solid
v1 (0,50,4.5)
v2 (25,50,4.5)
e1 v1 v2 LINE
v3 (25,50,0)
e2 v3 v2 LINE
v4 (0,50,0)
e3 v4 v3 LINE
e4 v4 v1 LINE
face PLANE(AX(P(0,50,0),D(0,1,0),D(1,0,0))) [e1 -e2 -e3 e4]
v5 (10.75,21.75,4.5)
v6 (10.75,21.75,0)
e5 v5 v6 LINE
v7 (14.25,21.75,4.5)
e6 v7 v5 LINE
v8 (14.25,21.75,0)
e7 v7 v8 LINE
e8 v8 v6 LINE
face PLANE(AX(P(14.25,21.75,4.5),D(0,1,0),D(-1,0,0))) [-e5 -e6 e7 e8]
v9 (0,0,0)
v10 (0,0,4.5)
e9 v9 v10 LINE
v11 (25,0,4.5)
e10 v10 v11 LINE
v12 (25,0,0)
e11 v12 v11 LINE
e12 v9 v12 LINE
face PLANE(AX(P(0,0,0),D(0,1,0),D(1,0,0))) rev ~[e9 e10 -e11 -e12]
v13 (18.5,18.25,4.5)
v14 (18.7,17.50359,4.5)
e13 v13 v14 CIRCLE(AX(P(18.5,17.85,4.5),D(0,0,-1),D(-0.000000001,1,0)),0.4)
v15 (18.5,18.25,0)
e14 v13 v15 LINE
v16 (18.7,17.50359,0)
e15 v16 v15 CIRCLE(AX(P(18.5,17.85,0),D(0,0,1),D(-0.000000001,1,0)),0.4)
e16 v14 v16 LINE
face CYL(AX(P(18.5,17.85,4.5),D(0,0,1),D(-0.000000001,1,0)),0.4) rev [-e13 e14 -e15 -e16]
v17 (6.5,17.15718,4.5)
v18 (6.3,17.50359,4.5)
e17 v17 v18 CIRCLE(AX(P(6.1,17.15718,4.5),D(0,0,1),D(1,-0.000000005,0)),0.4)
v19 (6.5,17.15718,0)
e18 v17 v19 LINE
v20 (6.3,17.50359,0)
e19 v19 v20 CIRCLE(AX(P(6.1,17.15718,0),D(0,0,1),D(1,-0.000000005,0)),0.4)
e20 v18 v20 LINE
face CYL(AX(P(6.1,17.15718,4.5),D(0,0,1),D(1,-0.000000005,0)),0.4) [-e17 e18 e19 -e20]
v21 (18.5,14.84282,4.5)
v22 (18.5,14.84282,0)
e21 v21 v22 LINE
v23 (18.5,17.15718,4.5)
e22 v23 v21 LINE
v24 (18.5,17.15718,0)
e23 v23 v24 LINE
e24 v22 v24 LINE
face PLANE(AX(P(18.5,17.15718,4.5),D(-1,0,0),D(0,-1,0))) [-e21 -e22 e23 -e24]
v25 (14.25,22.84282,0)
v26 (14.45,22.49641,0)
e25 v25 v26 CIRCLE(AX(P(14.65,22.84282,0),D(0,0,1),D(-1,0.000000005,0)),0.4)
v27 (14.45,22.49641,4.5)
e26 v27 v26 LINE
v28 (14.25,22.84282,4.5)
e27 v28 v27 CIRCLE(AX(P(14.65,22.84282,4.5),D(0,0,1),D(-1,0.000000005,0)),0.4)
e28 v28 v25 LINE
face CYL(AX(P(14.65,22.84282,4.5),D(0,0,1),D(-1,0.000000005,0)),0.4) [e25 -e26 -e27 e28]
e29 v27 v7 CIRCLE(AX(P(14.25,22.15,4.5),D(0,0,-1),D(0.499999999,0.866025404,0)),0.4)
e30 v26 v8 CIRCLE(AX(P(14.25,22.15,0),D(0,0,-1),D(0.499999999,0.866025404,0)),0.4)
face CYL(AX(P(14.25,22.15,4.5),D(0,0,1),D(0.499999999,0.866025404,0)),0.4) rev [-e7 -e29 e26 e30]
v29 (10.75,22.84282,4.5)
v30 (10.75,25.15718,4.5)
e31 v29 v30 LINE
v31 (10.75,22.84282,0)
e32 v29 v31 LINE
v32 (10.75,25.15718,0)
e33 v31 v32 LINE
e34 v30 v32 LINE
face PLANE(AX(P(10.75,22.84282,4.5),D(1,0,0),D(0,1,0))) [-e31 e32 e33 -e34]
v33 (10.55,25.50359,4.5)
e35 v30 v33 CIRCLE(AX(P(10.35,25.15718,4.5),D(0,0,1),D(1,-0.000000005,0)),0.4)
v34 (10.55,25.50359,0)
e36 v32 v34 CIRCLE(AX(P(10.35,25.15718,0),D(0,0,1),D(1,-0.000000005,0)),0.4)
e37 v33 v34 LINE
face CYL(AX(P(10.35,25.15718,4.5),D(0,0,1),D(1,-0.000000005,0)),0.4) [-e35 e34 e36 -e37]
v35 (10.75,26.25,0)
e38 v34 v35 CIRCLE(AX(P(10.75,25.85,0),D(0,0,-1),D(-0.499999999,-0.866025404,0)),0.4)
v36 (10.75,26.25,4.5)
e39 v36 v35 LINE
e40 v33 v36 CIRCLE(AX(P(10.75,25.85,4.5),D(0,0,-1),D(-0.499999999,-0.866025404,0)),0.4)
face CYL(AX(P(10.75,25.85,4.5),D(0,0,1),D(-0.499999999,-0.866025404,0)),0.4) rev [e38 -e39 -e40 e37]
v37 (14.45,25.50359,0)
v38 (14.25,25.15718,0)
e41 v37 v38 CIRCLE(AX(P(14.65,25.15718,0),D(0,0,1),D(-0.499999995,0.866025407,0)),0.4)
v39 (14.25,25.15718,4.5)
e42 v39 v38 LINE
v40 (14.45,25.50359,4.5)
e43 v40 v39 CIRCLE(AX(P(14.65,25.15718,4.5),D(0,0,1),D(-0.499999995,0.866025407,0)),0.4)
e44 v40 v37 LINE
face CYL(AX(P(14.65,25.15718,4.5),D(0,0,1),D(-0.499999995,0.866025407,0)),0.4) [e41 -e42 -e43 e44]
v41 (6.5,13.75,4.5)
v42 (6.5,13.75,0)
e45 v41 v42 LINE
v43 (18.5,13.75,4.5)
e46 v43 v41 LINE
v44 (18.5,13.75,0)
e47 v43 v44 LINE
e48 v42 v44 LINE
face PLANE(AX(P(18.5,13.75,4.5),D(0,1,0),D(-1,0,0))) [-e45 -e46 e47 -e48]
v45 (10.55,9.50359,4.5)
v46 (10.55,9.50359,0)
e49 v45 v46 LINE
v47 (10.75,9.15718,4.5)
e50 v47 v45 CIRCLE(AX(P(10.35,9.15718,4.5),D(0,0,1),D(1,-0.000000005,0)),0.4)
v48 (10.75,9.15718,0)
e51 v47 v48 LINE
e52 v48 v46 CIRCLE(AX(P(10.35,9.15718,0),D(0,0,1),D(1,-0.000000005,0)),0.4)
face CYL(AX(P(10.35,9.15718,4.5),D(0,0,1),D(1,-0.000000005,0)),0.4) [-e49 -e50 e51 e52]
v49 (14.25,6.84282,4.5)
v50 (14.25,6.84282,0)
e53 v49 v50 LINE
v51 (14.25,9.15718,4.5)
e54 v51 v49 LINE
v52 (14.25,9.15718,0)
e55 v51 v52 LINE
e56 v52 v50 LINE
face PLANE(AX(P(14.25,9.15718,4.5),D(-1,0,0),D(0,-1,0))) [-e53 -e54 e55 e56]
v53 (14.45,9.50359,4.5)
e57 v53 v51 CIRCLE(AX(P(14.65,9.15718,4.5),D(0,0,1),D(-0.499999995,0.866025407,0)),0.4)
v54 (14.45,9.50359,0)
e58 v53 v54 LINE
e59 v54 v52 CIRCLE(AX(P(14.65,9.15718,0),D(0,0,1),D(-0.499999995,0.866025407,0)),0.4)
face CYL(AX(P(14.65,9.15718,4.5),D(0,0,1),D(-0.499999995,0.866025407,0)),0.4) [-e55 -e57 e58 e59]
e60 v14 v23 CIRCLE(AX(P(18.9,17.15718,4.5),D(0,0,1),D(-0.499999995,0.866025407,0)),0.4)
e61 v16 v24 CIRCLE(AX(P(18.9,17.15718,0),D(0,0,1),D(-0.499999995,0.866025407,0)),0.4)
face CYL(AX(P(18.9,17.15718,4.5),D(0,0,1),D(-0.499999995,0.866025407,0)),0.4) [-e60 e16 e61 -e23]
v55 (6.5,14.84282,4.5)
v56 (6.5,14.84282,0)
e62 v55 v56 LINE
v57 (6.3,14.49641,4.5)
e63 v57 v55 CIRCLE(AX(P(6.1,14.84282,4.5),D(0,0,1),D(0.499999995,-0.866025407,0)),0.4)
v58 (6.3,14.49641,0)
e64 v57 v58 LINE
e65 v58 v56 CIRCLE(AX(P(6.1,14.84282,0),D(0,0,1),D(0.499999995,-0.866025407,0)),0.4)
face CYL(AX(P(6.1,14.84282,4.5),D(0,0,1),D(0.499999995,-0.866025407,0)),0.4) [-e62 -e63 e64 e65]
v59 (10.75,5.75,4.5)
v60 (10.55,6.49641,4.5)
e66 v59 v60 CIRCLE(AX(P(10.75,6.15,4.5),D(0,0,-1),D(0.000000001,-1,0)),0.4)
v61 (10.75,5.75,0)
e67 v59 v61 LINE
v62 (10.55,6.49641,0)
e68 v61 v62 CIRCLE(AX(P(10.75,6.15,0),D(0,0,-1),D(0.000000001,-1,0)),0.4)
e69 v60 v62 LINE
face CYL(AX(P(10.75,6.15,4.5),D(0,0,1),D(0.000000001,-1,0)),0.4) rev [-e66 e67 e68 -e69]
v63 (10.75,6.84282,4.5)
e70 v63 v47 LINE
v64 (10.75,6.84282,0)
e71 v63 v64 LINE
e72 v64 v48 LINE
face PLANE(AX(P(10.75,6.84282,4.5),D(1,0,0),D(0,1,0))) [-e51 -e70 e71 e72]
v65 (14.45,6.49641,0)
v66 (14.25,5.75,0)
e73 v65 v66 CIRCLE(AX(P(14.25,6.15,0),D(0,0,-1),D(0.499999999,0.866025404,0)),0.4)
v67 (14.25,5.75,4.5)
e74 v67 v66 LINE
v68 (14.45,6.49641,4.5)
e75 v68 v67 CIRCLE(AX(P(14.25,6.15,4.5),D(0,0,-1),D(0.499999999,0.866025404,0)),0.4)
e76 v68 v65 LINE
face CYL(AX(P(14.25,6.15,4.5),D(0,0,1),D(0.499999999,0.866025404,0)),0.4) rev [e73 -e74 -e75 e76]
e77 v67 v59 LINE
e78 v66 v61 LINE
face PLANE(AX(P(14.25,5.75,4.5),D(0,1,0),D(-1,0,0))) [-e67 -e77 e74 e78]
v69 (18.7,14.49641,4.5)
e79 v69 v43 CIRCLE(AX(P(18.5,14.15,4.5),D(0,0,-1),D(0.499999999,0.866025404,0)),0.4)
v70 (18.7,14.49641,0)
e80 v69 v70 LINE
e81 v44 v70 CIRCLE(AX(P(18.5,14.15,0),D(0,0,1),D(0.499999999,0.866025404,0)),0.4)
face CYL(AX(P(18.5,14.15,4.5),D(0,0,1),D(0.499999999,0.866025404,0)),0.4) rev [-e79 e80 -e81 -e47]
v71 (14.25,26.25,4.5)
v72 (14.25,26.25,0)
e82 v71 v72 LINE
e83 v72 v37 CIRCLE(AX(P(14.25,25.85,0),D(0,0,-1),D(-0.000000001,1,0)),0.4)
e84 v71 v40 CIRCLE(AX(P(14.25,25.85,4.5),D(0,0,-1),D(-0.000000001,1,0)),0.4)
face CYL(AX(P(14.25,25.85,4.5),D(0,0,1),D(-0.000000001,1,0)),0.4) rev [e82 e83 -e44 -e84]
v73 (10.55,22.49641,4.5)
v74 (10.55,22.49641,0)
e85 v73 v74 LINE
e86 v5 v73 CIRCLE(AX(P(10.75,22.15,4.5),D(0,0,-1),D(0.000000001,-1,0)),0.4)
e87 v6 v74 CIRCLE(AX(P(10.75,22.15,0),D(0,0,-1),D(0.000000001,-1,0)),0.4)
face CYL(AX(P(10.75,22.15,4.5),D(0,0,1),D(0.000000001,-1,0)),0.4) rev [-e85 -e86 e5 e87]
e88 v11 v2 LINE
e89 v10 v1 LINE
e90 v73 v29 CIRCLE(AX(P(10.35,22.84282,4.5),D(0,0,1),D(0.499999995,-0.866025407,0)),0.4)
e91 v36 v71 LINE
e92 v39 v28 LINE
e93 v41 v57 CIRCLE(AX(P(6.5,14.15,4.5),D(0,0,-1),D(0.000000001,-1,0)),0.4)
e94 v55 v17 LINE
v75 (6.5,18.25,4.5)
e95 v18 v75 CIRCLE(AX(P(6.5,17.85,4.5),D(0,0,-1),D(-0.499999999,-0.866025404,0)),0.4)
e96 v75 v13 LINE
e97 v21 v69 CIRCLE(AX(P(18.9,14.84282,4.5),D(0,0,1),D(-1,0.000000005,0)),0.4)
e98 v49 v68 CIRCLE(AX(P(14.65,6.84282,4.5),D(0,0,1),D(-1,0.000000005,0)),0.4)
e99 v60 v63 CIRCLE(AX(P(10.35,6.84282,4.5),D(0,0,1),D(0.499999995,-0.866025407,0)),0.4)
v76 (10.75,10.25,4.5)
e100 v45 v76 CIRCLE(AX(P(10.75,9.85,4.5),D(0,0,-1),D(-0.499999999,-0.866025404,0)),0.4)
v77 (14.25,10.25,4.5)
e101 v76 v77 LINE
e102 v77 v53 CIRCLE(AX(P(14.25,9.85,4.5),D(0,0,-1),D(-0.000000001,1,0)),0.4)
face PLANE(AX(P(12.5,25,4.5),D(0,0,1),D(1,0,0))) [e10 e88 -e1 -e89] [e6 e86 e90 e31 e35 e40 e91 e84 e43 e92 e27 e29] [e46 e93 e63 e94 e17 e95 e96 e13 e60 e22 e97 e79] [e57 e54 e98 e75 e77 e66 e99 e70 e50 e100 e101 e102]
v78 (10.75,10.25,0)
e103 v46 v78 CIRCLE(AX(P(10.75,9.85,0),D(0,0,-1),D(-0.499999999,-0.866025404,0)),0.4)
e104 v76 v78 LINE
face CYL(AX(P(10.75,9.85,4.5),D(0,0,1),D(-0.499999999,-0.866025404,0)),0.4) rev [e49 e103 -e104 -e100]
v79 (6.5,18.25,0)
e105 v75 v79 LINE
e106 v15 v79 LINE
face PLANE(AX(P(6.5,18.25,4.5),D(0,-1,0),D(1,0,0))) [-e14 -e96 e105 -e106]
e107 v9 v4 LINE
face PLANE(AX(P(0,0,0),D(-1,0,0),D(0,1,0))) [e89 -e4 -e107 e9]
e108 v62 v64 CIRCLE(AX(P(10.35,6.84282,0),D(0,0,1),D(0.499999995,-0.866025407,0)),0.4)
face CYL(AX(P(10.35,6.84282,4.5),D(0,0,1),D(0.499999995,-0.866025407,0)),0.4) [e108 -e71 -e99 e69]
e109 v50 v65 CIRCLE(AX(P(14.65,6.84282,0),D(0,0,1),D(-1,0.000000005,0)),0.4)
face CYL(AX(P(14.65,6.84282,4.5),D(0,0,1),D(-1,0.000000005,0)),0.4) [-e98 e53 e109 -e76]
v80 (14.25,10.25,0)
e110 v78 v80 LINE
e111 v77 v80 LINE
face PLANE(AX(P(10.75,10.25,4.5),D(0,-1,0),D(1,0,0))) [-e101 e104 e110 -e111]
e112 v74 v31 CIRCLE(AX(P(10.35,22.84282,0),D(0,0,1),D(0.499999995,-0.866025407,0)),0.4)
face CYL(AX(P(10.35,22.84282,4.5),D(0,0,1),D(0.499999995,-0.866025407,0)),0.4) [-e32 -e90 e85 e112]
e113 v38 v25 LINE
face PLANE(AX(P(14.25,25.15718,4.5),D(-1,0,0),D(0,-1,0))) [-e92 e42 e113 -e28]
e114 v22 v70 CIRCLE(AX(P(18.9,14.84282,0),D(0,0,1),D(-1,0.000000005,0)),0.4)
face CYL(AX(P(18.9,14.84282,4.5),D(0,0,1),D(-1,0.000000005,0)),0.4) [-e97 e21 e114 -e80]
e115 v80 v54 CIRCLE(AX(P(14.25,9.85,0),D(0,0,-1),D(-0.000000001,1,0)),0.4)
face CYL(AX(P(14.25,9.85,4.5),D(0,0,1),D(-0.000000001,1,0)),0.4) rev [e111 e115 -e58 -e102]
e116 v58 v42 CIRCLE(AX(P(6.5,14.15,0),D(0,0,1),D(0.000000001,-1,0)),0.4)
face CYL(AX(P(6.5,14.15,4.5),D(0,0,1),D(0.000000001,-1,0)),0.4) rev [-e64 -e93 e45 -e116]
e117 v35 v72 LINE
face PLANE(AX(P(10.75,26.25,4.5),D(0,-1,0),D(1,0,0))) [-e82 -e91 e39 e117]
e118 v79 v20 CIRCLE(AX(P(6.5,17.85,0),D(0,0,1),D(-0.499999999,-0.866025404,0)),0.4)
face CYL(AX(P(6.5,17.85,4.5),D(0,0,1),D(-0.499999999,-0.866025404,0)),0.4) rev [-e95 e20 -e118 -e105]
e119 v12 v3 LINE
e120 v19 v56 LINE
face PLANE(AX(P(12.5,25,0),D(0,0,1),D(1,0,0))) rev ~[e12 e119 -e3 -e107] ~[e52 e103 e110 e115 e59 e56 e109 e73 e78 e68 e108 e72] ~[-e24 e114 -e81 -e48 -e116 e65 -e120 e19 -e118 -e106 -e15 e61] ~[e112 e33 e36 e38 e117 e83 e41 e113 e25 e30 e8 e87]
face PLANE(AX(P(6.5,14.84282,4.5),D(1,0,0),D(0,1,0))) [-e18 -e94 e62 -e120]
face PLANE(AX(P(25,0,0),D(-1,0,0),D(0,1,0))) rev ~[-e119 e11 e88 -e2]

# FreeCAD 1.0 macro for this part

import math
import FreeCAD as App
import Part
import Sketcher

V = App.Vector
Q = App.Units.Quantity


def add_polygon(sketch, points):
    """Adds a closed chain of lines whose ends are joined by coincident constraints."""
    first, n = sketch.GeometryCount, len(points)
    for a, b in zip(points, points[1:] + points[:1]):
        sketch.addGeometry(Part.LineSegment(App.Vector(*a, 0), App.Vector(*b, 0)), False)
    for i in range(n):
        sketch.addConstraint(Sketcher.Constraint("Coincident", first + i, 2, first + (i + 1) % n, 1))

doc = App.newDocument("Part")
params = doc.addObject("Spreadsheet::Sheet", "Params")
for row, (alias, value) in enumerate([
    ("sketch1_width", "25 mm"),
    ("sketch1_height", "50 mm"),
    ("pad1_length", "4.5 mm"),
    ("sketch2_radius", "0.4 mm"),
    ("sketch2_width", "3.5 mm"),
    ("pocket1_length", "4.5 mm"),
    ("linearpattern_pitch", "16 mm"),
    ("sketch3_radius", "0.4 mm"),
    ("sketch3_width", "12 mm"),
], start=1):
    params.set(f"A{row}", alias)
    params.set(f"B{row}", "=" + value)
    params.setAlias(f"B{row}", alias)

body = doc.addObject("PartDesign::Body", "Body")

# Sketch on XY plane
sketch1 = doc.addObject("Sketcher::SketchObject", "Sketch")
body.addObject(sketch1)
sketch1.AttachmentSupport = (doc.XY_Plane, [""])
sketch1.MapMode = "FlatFace"
add_polygon(sketch1, [(0, 50), (0, 0), (25, 0), (25, 50)])  # lines 0-3
sketch1.addConstraint(Sketcher.Constraint("Vertical", 0))
sketch1.addConstraint(Sketcher.Constraint("Horizontal", 1))
sketch1.addConstraint(Sketcher.Constraint("Vertical", 2))
sketch1.addConstraint(Sketcher.Constraint("Horizontal", 3))
sketch1.addConstraint(Sketcher.Constraint("Coincident", 0, 2, -1, 1))
sketch1.addConstraint(Sketcher.Constraint("DistanceX", 1, 1, 1, 2, Q("25 mm")))
sketch1.addConstraint(Sketcher.Constraint("DistanceY", 0, 2, 0, 1, Q("50 mm")))
sketch1.setExpression("Constraints[9]", "Params.sketch1_width")
sketch1.setExpression("Constraints[10]", "Params.sketch1_height")
pad1 = doc.addObject("PartDesign::Pad", "Pad")
body.addObject(pad1)
pad1.Profile = sketch1
pad1.setExpression("Length", "Params.pad1_length")

# Sketch on XY plane
sketch2 = doc.addObject("Sketcher::SketchObject", "Sketch001")
body.addObject(sketch2)
sketch2.AttachmentSupport = (doc.XY_Plane, [""])
sketch2.MapMode = "FlatFace"
sketch2.AttachmentOffset = App.Placement(V(0, 0, 4.5), App.Rotation())
sketch2.addGeometry(Part.ArcOfCircle(Part.Circle(V(14.25, 9.85, 0), V(0, 0, 1), 0.4), math.radians(-60), math.radians(90)), False)
sketch2.addGeometry(Part.LineSegment(V(14.25, 10.25, 0), V(10.75, 10.25, 0)), False)
sketch2.addGeometry(Part.ArcOfCircle(Part.Circle(V(10.75, 9.85, 0), V(0, 0, 1), 0.4), math.radians(90), math.radians(240)), False)
sketch2.addGeometry(Part.ArcOfCircle(Part.Circle(V(10.35, 9.15718, 0), V(0, 0, 1), 0.4), math.radians(0), math.radians(60)), False)
sketch2.addGeometry(Part.LineSegment(V(10.75, 9.15718, 0), V(10.75, 6.84282, 0)), False)
sketch2.addGeometry(Part.ArcOfCircle(Part.Circle(V(10.35, 6.84282, 0), V(0, 0, 1), 0.4), math.radians(-60), math.radians(0)), False)
sketch2.addGeometry(Part.ArcOfCircle(Part.Circle(V(10.75, 6.15, 0), V(0, 0, 1), 0.4), math.radians(120), math.radians(270)), False)
sketch2.addGeometry(Part.LineSegment(V(10.75, 5.75, 0), V(14.25, 5.75, 0)), False)
sketch2.addGeometry(Part.ArcOfCircle(Part.Circle(V(14.25, 6.15, 0), V(0, 0, 1), 0.4), math.radians(-90), math.radians(60)), False)
sketch2.addGeometry(Part.ArcOfCircle(Part.Circle(V(14.65, 6.84282, 0), V(0, 0, 1), 0.4), math.radians(180), math.radians(240)), False)
sketch2.addGeometry(Part.LineSegment(V(14.25, 6.84282, 0), V(14.25, 9.15718, 0)), False)
sketch2.addGeometry(Part.ArcOfCircle(Part.Circle(V(14.65, 9.15718, 0), V(0, 0, 1), 0.4), math.radians(120), math.radians(180)), False)
sketch2.addConstraint(Sketcher.Constraint("Tangent", 0, 2, 1, 1))
sketch2.addConstraint(Sketcher.Constraint("Tangent", 1, 2, 2, 1))
sketch2.addConstraint(Sketcher.Constraint("Tangent", 2, 2, 3, 2))
sketch2.addConstraint(Sketcher.Constraint("Tangent", 3, 1, 4, 1))
sketch2.addConstraint(Sketcher.Constraint("Tangent", 4, 2, 5, 2))
sketch2.addConstraint(Sketcher.Constraint("Tangent", 5, 1, 6, 1))
sketch2.addConstraint(Sketcher.Constraint("Tangent", 6, 2, 7, 1))
sketch2.addConstraint(Sketcher.Constraint("Tangent", 7, 2, 8, 1))
sketch2.addConstraint(Sketcher.Constraint("Tangent", 8, 2, 9, 2))
sketch2.addConstraint(Sketcher.Constraint("Tangent", 9, 1, 10, 1))
sketch2.addConstraint(Sketcher.Constraint("Tangent", 10, 2, 11, 2))
sketch2.addConstraint(Sketcher.Constraint("Tangent", 11, 1, 0, 1))
sketch2.addConstraint(Sketcher.Constraint("Horizontal", 1))
sketch2.addConstraint(Sketcher.Constraint("Vertical", 4))
sketch2.addConstraint(Sketcher.Constraint("Horizontal", 7))
sketch2.addConstraint(Sketcher.Constraint("Vertical", 10))
sketch2.addConstraint(Sketcher.Constraint("Equal", 0, 2))
sketch2.addConstraint(Sketcher.Constraint("Equal", 2, 3))
sketch2.addConstraint(Sketcher.Constraint("Equal", 3, 5))
sketch2.addConstraint(Sketcher.Constraint("Equal", 5, 6))
sketch2.addConstraint(Sketcher.Constraint("Equal", 6, 8))
sketch2.addConstraint(Sketcher.Constraint("Equal", 8, 9))
sketch2.addConstraint(Sketcher.Constraint("Equal", 9, 11))
sketch2.addConstraint(Sketcher.Constraint("Horizontal", 5, 3, 9, 3))
sketch2.addConstraint(Sketcher.Constraint("Horizontal", 3, 3, 11, 3))
sketch2.addConstraint(Sketcher.Constraint("Vertical", 2, 3, 6, 3))
sketch2.addConstraint(Sketcher.Constraint("Vertical", 1, 2, 3, 1))
sketch2.addConstraint(Sketcher.Constraint("Radius", 0, Q("0.4 mm")))
sketch2.addConstraint(Sketcher.Constraint("DistanceX", 1, 2, 1, 1, Q("3.5 mm")))
sketch2.addConstraint(Sketcher.Constraint("DistanceY", 6, 3, 2, 3, Q("3.7 mm")))
sketch2.addConstraint(Sketcher.Constraint("DistanceX", -1, 1, 0, 3, Q("14.25 mm")))
sketch2.addConstraint(Sketcher.Constraint("DistanceY", -1, 1, 0, 3, Q("9.85 mm")))
sketch2.setExpression("Constraints[27]", "Params.sketch2_radius")
sketch2.setExpression("Constraints[28]", "Params.sketch2_width")
pocket1 = doc.addObject("PartDesign::Pocket", "Pocket")
body.addObject(pocket1)
pocket1.Profile = sketch2
pocket1.setExpression("Length", "Params.pocket1_length")
doc.recompute()

linearpattern = doc.addObject("PartDesign::LinearPattern", "LinearPattern")
body.addObject(linearpattern)
linearpattern.Originals = [pocket1]
linearpattern.Direction = (doc.Y_Axis, [""])
linearpattern.Mode = "offset"
linearpattern.setExpression("Offset", "Params.linearpattern_pitch")
linearpattern.Occurrences = 2
body.Tip = linearpattern

# Sketch on XY plane
sketch3 = doc.addObject("Sketcher::SketchObject", "Sketch002")
body.addObject(sketch3)
sketch3.AttachmentSupport = (doc.XY_Plane, [""])
sketch3.MapMode = "FlatFace"
sketch3.AttachmentOffset = App.Placement(V(0, 0, 4.5), App.Rotation())
sketch3.addGeometry(Part.LineSegment(V(18.5, 18.25, 0), V(6.5, 18.25, 0)), False)
sketch3.addGeometry(Part.ArcOfCircle(Part.Circle(V(6.5, 17.85, 0), V(0, 0, 1), 0.4), math.radians(90), math.radians(240)), False)
sketch3.addGeometry(Part.ArcOfCircle(Part.Circle(V(6.1, 17.15718, 0), V(0, 0, 1), 0.4), math.radians(0), math.radians(60)), False)
sketch3.addGeometry(Part.LineSegment(V(6.5, 17.15718, 0), V(6.5, 14.84282, 0)), False)
sketch3.addGeometry(Part.ArcOfCircle(Part.Circle(V(6.1, 14.84282, 0), V(0, 0, 1), 0.4), math.radians(-60), math.radians(0)), False)
sketch3.addGeometry(Part.ArcOfCircle(Part.Circle(V(6.5, 14.15, 0), V(0, 0, 1), 0.4), math.radians(120), math.radians(270)), False)
sketch3.addGeometry(Part.LineSegment(V(6.5, 13.75, 0), V(18.5, 13.75, 0)), False)
sketch3.addGeometry(Part.ArcOfCircle(Part.Circle(V(18.5, 14.15, 0), V(0, 0, 1), 0.4), math.radians(-90), math.radians(60)), False)
sketch3.addGeometry(Part.ArcOfCircle(Part.Circle(V(18.9, 14.84282, 0), V(0, 0, 1), 0.4), math.radians(180), math.radians(240)), False)
sketch3.addGeometry(Part.LineSegment(V(18.5, 14.84282, 0), V(18.5, 17.15718, 0)), False)
sketch3.addGeometry(Part.ArcOfCircle(Part.Circle(V(18.9, 17.15718, 0), V(0, 0, 1), 0.4), math.radians(120), math.radians(180)), False)
sketch3.addGeometry(Part.ArcOfCircle(Part.Circle(V(18.5, 17.85, 0), V(0, 0, 1), 0.4), math.radians(-60), math.radians(90)), False)
sketch3.addConstraint(Sketcher.Constraint("Tangent", 0, 2, 1, 1))
sketch3.addConstraint(Sketcher.Constraint("Tangent", 1, 2, 2, 2))
sketch3.addConstraint(Sketcher.Constraint("Tangent", 2, 1, 3, 1))
sketch3.addConstraint(Sketcher.Constraint("Tangent", 3, 2, 4, 2))
sketch3.addConstraint(Sketcher.Constraint("Tangent", 4, 1, 5, 1))
sketch3.addConstraint(Sketcher.Constraint("Tangent", 5, 2, 6, 1))
sketch3.addConstraint(Sketcher.Constraint("Tangent", 6, 2, 7, 1))
sketch3.addConstraint(Sketcher.Constraint("Tangent", 7, 2, 8, 2))
sketch3.addConstraint(Sketcher.Constraint("Tangent", 8, 1, 9, 1))
sketch3.addConstraint(Sketcher.Constraint("Tangent", 9, 2, 10, 2))
sketch3.addConstraint(Sketcher.Constraint("Tangent", 10, 1, 11, 1))
sketch3.addConstraint(Sketcher.Constraint("Tangent", 11, 2, 0, 1))
sketch3.addConstraint(Sketcher.Constraint("Horizontal", 0))
sketch3.addConstraint(Sketcher.Constraint("Vertical", 3))
sketch3.addConstraint(Sketcher.Constraint("Horizontal", 6))
sketch3.addConstraint(Sketcher.Constraint("Vertical", 9))
sketch3.addConstraint(Sketcher.Constraint("Equal", 1, 2))
sketch3.addConstraint(Sketcher.Constraint("Equal", 2, 4))
sketch3.addConstraint(Sketcher.Constraint("Equal", 4, 5))
sketch3.addConstraint(Sketcher.Constraint("Equal", 5, 7))
sketch3.addConstraint(Sketcher.Constraint("Equal", 7, 8))
sketch3.addConstraint(Sketcher.Constraint("Equal", 8, 10))
sketch3.addConstraint(Sketcher.Constraint("Equal", 10, 11))
sketch3.addConstraint(Sketcher.Constraint("Horizontal", 4, 3, 8, 3))
sketch3.addConstraint(Sketcher.Constraint("Horizontal", 2, 3, 10, 3))
sketch3.addConstraint(Sketcher.Constraint("Vertical", 1, 3, 5, 3))
sketch3.addConstraint(Sketcher.Constraint("Vertical", 0, 2, 2, 1))
sketch3.addConstraint(Sketcher.Constraint("Radius", 1, Q("0.4 mm")))
sketch3.addConstraint(Sketcher.Constraint("DistanceX", 0, 2, 0, 1, Q("12 mm")))
sketch3.addConstraint(Sketcher.Constraint("DistanceX", -1, 1, 1, 3, Q("6.5 mm")))
sketch3.addConstraint(Sketcher.Constraint("DistanceY", 5, 3, 1, 3, Q("3.7 mm")))
sketch3.addConstraint(Sketcher.Constraint("DistanceY", -1, 1, 1, 3, Q("17.85 mm")))
sketch3.setExpression("Constraints[27]", "Params.sketch3_radius")
sketch3.setExpression("Constraints[28]", "Params.sketch3_width")
pocket2 = doc.addObject("PartDesign::Pocket", "Pocket001")
body.addObject(pocket2)
pocket2.Profile = sketch3
pocket2.Type = "UpToFirst"

doc.recompute()
